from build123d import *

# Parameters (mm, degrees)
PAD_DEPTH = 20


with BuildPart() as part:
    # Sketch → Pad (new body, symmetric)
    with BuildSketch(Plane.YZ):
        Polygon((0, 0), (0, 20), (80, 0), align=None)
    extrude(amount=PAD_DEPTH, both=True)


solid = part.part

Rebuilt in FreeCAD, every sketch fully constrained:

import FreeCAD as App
import Part
import Sketcher
Q = App.Units.Quantity


def add_polygon(sketch, points):
    """Adds a closed chain of lines whose ends are joined by coincident constraints."""
    first, n = sketch.GeometryCount, len(points)
    for a, b in zip(points, points[1:] + points[:1]):
        sketch.addGeometry(Part.LineSegment(App.Vector(*a, 0), App.Vector(*b, 0)), False)
    for i in range(n):
        sketch.addConstraint(Sketcher.Constraint("Coincident", first + i, 2, first + (i + 1) % n, 1))

doc = App.newDocument("Part")
body = doc.addObject("PartDesign::Body", "Body")

# Sketch on YZ plane
sketch1 = body.newObject("Sketcher::SketchObject", "Sketch")
sketch1.AttachmentSupport = (doc.getObject("YZ_Plane"), [""])
sketch1.MapMode = "FlatFace"
add_polygon(sketch1, [(0, 20), (0, 0), (80, 0)])  # lines 0-2
sketch1.addConstraint(Sketcher.Constraint("Vertical", 0))
sketch1.addConstraint(Sketcher.Constraint("Horizontal", 1))
sketch1.addConstraint(Sketcher.Constraint("Coincident", 0, 2, -1, 1))
sketch1.addConstraint(Sketcher.Constraint("DistanceX", 1, 1, 1, 2, Q("80 mm")))
sketch1.addConstraint(Sketcher.Constraint("DistanceY", 0, 2, 0, 1, Q("20 mm")))
pad1 = body.newObject("PartDesign::Pad", "Pad")
pad1.Profile = sketch1
pad1.Length = 40
pad1.Midplane = True

doc.recompute()
